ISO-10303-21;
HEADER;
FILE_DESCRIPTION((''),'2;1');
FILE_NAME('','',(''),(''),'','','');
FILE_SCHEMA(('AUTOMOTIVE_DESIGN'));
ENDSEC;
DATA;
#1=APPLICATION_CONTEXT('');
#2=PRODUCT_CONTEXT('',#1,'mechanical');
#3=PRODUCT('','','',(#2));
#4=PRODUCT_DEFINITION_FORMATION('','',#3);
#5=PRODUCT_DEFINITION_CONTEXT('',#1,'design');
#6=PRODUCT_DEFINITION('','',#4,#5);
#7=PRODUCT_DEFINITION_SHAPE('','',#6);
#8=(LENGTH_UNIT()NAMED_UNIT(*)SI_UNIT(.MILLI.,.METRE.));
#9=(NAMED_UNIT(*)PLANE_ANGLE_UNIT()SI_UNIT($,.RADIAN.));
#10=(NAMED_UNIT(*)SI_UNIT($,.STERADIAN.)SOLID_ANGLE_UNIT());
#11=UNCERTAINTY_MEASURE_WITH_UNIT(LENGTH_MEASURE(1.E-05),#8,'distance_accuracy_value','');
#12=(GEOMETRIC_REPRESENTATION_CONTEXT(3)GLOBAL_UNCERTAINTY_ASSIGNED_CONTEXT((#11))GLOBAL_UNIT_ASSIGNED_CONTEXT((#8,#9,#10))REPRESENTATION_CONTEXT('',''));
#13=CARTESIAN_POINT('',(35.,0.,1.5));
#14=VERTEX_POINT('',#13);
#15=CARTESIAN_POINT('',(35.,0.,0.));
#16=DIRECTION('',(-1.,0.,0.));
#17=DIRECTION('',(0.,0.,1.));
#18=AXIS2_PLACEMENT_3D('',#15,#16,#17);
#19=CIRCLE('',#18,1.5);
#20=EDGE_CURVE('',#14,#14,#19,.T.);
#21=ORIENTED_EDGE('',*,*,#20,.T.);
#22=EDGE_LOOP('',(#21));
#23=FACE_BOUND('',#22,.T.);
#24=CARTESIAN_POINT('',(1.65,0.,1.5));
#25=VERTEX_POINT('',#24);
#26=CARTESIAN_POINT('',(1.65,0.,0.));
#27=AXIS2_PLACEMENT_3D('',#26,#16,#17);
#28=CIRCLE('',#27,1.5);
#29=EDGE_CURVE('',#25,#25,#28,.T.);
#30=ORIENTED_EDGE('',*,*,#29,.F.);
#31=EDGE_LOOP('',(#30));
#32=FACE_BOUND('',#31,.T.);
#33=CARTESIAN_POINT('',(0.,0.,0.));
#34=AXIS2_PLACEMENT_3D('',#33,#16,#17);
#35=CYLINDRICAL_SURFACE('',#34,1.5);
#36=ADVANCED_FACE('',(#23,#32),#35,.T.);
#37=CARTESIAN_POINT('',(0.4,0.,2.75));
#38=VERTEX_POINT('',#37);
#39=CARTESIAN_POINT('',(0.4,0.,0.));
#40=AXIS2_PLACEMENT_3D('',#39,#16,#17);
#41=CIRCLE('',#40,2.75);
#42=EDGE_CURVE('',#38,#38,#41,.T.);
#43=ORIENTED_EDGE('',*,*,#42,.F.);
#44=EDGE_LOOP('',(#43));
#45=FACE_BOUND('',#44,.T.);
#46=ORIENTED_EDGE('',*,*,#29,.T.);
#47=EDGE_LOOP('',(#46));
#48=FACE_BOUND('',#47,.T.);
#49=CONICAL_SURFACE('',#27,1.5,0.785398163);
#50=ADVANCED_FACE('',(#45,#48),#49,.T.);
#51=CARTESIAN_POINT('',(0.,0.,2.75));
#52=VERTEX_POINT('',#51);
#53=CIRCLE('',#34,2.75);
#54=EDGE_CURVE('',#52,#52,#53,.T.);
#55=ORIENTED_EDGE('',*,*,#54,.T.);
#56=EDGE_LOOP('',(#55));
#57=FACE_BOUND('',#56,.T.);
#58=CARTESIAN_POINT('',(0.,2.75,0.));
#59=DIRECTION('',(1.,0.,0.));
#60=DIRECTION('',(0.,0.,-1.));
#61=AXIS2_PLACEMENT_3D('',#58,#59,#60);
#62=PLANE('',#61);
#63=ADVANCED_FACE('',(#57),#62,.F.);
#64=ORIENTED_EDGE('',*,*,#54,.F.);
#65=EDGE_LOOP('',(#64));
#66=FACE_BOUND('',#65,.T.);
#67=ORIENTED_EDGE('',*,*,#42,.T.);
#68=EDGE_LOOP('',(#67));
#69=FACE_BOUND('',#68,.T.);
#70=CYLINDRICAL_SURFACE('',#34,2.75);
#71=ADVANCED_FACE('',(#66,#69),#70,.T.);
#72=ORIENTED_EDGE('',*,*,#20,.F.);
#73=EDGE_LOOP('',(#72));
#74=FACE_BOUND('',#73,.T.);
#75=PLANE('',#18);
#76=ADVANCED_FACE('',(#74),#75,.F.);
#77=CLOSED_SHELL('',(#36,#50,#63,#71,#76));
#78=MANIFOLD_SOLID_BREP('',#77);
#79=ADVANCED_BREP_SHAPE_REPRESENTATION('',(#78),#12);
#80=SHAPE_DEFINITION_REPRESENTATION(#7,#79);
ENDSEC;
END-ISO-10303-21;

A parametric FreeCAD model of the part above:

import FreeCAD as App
import Part
import Sketcher
from FreeCAD import Vector
Q = App.Units.Quantity

doc = App.newDocument("Part")
params = doc.addObject("Spreadsheet::Sheet", "Params")
for row, (alias, value) in enumerate([
    ("sketch1_width", "35 mm"),
    ("sketch1_width2", "0.4 mm"),
    ("sketch1_height", "1.5 mm"),
    ("sketch1_width3", "33.35 mm"),
    ("revolution_angle", "360 deg"),
], start=1):
    params.set(f"A{row}", alias)
    params.set(f"B{row}", "=" + value)
    params.setAlias(f"B{row}", alias)

body = doc.addObject("PartDesign::Body", "Body")

sketch1 = body.newObject("Sketcher::SketchObject", "Sketch")
sketch1.AttachmentSupport = (doc.getObject("XY_Plane"), [""])
sketch1.MapMode = "FlatFace"
sketch1.addGeometry(Part.LineSegment(Vector(0, 0, 0), Vector(35, 0, 0)), False)
sketch1.addGeometry(Part.LineSegment(Vector(35, 0, 0), Vector(35, 1.5, 0)), False)
sketch1.addGeometry(Part.LineSegment(Vector(35, 1.5, 0), Vector(1.65, 1.5, 0)), False)
sketch1.addGeometry(Part.LineSegment(Vector(1.65, 1.5, 0), Vector(0.4, 2.75, 0)), False)
sketch1.addGeometry(Part.LineSegment(Vector(0.4, 2.75, 0), Vector(0, 2.75, 0)), False)
sketch1.addGeometry(Part.LineSegment(Vector(0, 2.75, 0), Vector(0, 0, 0)), False)
sketch1.addConstraint(Sketcher.Constraint("Coincident", 0, 2, 1, 1))
sketch1.addConstraint(Sketcher.Constraint("Coincident", 1, 2, 2, 1))
sketch1.addConstraint(Sketcher.Constraint("Coincident", 2, 2, 3, 1))
sketch1.addConstraint(Sketcher.Constraint("Coincident", 3, 2, 4, 1))
sketch1.addConstraint(Sketcher.Constraint("Coincident", 4, 2, 5, 1))
sketch1.addConstraint(Sketcher.Constraint("Coincident", 5, 2, 0, 1))
sketch1.addConstraint(Sketcher.Constraint("Horizontal", 0))
sketch1.addConstraint(Sketcher.Constraint("Vertical", 1))
sketch1.addConstraint(Sketcher.Constraint("Horizontal", 2))
sketch1.addConstraint(Sketcher.Constraint("Horizontal", 4))
sketch1.addConstraint(Sketcher.Constraint("Vertical", 5))
sketch1.addConstraint(Sketcher.Constraint("Coincident", 5, 2, -1, 1))
sketch1.addConstraint(Sketcher.Constraint("DistanceX", 0, 1, 0, 2, Q("35 mm")))
sketch1.addConstraint(Sketcher.Constraint("Angle", 3, Q("135 deg")))
sketch1.addConstraint(Sketcher.Constraint("DistanceX", 4, 2, 4, 1, Q("0.4 mm")))
sketch1.addConstraint(Sketcher.Constraint("DistanceY", 1, 1, 1, 2, Q("1.5 mm")))
sketch1.addConstraint(Sketcher.Constraint("DistanceX", 2, 2, 2, 1, Q("33.35 mm")))
sketch1.setExpression("Constraints[12]", "Params.sketch1_width")
sketch1.setExpression("Constraints[14]", "Params.sketch1_width2")
sketch1.setExpression("Constraints[15]", "Params.sketch1_height")
sketch1.setExpression("Constraints[16]", "Params.sketch1_width3")
revolution = body.newObject("PartDesign::Revolution", "Revolution")
revolution.Profile = sketch1
revolution.ReferenceAxis = (sketch1, ["H_Axis"])
revolution.setExpression("Angle", "Params.revolution_angle")

doc.recompute()
